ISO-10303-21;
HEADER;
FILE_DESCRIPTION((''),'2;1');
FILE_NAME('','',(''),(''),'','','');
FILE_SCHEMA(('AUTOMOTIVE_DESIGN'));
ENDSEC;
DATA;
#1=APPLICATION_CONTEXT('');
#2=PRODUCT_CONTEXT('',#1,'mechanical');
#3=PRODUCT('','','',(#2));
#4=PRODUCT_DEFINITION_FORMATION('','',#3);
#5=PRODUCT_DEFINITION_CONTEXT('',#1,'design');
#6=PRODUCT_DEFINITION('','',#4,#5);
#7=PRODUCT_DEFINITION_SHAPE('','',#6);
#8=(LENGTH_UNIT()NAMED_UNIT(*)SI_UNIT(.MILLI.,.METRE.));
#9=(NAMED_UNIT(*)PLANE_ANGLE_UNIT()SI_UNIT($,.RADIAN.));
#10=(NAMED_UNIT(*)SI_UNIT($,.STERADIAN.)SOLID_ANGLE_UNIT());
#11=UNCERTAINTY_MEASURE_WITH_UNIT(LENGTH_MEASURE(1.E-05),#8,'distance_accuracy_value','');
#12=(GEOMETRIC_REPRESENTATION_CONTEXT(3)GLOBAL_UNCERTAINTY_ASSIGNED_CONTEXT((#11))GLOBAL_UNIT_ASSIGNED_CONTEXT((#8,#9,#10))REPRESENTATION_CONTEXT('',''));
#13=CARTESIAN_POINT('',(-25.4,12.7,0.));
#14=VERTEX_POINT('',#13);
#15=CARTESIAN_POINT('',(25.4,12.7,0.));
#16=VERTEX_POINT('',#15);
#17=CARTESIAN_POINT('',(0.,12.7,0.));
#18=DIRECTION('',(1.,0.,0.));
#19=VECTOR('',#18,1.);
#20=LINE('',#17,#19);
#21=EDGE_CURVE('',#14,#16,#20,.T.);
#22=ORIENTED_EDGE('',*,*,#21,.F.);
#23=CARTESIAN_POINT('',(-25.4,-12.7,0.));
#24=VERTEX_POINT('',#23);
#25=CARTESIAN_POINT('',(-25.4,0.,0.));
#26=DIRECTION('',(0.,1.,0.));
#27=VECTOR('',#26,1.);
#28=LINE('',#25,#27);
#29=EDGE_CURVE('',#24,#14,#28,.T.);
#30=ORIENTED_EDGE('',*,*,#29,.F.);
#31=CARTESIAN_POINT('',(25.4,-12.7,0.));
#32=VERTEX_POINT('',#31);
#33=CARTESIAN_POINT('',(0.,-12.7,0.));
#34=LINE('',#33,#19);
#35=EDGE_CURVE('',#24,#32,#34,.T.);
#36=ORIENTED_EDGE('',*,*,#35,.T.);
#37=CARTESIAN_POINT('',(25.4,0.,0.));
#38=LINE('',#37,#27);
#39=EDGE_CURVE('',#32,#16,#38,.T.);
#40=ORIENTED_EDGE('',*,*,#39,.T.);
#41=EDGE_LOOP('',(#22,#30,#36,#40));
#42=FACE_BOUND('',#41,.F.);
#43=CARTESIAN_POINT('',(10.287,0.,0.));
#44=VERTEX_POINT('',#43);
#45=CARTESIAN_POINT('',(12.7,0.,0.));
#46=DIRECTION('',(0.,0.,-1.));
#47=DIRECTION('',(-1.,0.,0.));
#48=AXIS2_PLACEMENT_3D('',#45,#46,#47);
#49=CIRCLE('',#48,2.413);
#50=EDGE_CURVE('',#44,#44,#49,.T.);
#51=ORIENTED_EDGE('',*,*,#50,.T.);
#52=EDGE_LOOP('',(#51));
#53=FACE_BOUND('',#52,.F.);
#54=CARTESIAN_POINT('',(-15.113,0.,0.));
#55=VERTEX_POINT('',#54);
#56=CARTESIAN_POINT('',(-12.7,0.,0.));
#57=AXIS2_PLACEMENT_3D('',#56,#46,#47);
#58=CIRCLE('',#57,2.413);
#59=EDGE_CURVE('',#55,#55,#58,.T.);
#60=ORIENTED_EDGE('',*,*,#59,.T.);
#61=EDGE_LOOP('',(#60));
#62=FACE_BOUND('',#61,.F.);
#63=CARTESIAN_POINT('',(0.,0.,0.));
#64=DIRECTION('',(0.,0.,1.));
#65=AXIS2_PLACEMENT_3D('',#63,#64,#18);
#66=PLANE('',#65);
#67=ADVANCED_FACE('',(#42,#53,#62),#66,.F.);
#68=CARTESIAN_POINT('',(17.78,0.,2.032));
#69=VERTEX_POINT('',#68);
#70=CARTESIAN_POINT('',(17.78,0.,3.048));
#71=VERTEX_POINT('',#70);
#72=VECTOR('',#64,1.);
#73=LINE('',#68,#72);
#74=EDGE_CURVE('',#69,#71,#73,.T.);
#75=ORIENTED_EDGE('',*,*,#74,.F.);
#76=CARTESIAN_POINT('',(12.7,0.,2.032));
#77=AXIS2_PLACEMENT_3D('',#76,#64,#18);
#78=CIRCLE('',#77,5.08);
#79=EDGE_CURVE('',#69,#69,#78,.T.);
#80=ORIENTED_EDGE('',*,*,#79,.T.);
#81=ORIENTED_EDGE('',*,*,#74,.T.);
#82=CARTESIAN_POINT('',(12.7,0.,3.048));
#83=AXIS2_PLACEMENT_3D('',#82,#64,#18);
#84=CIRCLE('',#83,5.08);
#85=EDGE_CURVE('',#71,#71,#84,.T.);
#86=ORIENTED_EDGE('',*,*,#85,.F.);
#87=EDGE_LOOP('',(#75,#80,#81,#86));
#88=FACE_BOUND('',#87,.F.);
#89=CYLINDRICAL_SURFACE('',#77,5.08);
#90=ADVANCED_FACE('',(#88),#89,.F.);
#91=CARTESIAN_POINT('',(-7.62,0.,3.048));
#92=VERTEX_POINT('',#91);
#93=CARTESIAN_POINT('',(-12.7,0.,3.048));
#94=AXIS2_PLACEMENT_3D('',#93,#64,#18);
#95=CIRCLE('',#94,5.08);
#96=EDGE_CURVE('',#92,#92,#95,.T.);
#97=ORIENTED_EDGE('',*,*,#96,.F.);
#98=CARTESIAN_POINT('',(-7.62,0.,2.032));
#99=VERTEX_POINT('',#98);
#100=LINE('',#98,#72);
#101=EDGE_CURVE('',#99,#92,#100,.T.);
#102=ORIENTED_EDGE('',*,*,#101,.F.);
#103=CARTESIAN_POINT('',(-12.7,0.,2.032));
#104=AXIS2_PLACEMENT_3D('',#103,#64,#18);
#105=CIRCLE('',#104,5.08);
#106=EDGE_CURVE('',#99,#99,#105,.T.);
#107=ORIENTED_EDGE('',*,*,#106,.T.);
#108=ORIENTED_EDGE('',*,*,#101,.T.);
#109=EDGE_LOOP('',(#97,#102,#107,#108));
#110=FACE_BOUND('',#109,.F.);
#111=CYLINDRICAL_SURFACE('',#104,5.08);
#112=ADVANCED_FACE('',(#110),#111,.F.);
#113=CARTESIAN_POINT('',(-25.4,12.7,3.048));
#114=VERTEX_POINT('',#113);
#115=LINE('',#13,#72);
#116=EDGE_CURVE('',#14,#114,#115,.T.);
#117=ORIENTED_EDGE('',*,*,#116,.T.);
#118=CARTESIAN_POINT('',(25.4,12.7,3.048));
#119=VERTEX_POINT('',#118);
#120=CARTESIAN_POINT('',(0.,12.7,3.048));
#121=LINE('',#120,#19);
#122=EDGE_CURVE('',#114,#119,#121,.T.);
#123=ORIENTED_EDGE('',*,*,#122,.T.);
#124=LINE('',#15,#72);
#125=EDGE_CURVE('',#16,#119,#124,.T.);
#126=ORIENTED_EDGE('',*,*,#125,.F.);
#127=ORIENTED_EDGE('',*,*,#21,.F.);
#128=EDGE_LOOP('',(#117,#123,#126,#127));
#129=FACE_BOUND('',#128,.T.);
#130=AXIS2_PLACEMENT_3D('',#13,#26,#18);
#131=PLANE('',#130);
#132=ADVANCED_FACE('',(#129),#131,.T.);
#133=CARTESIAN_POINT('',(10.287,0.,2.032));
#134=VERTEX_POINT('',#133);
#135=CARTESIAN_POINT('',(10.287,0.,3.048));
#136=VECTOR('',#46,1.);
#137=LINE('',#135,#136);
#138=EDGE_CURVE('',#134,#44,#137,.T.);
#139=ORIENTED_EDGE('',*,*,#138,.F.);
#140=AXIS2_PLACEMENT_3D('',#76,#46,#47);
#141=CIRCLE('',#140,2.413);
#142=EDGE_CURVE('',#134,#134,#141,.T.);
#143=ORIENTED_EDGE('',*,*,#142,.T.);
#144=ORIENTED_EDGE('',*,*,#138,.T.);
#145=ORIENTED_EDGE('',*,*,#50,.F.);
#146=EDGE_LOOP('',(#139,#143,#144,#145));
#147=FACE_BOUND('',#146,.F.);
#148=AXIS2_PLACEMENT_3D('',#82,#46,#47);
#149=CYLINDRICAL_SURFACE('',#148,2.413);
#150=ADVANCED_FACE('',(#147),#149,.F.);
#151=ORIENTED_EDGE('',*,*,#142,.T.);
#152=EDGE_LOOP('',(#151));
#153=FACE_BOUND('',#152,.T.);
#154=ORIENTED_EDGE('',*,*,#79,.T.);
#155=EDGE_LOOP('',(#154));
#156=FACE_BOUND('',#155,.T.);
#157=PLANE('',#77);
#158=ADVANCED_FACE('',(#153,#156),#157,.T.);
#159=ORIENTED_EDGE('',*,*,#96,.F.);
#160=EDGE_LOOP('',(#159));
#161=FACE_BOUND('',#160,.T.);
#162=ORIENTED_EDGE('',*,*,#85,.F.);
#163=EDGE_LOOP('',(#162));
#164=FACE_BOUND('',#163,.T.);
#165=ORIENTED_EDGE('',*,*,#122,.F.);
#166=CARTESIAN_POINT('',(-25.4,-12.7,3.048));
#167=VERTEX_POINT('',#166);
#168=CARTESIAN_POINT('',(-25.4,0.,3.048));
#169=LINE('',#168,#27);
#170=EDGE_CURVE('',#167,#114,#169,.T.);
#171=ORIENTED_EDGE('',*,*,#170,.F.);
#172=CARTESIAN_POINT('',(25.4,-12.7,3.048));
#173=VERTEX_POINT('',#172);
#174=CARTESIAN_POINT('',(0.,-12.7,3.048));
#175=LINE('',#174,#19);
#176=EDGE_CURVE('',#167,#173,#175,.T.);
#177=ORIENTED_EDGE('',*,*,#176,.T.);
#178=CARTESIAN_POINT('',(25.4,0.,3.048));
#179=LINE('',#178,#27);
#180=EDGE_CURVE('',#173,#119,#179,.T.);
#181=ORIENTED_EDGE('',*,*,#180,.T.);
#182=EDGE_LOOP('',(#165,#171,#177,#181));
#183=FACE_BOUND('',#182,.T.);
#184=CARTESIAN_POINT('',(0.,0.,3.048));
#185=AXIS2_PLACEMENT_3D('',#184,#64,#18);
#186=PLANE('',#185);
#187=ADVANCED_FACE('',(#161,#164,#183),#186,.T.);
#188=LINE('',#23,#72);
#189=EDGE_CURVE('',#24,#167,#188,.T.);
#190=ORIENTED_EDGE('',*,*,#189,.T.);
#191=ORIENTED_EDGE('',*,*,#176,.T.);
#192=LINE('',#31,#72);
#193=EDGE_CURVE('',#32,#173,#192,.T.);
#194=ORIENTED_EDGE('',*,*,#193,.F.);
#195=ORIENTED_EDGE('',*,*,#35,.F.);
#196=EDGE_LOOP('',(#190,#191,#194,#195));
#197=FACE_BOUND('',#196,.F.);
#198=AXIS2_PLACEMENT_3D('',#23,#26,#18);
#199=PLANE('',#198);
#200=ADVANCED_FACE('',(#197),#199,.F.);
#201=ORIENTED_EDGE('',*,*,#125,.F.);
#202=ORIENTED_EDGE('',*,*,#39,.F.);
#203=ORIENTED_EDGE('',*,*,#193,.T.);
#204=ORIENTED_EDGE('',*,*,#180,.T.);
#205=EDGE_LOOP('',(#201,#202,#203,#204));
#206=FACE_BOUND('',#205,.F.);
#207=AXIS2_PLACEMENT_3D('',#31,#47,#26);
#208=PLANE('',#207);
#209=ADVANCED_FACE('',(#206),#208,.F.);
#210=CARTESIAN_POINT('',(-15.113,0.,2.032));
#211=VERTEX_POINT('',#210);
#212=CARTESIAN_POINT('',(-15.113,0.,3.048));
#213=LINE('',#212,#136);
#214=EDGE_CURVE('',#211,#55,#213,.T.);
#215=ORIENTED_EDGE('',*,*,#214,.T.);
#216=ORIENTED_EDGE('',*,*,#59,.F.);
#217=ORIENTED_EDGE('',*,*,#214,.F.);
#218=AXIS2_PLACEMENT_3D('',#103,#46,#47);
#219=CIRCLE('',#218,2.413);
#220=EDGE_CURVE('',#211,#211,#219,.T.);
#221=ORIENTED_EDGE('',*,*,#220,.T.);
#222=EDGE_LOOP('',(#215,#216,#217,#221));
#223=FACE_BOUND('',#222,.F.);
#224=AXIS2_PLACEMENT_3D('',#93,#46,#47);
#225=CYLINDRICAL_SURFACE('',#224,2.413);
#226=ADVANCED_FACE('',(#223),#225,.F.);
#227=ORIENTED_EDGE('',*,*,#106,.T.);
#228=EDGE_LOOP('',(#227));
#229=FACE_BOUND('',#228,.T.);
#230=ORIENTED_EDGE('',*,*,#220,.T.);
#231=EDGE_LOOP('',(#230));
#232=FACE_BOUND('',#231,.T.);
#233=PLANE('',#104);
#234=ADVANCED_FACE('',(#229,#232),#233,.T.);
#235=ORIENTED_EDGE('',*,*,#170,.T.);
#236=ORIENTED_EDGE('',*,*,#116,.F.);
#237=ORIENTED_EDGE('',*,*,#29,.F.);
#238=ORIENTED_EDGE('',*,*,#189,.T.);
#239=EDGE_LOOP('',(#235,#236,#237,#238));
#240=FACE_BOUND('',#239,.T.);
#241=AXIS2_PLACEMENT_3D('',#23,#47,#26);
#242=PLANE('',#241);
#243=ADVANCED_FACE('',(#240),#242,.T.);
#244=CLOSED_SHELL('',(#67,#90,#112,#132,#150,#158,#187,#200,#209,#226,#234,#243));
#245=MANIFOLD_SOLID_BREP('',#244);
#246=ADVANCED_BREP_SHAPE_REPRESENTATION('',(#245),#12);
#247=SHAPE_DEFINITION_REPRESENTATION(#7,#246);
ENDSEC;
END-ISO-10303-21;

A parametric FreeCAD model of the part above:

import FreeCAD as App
import Part
import Sketcher

V = App.Vector
Q = App.Units.Quantity

doc = App.newDocument("Part")
body = doc.addObject("PartDesign::Body", "Body")

# Sketch on XY plane
sketch1 = doc.addObject("Sketcher::SketchObject", "Sketch")
body.addObject(sketch1)
sketch1.AttachmentSupport = (doc.XY_Plane, [""])
sketch1.MapMode = "FlatFace"
sketch1.addGeometry([
    Part.LineSegment(V(-25, 13, 0), V(-25, -13, 0)),
    Part.LineSegment(V(-25, -13, 0), V(25, -13, 0)),
    Part.LineSegment(V(25, -13, 0), V(25, 13, 0)),
    Part.LineSegment(V(25, 13, 0), V(-25, 13, 0)),
], False)
sketch1.addConstraint([
    Sketcher.Constraint("Coincident", 0, 2, 1, 1),
    Sketcher.Constraint("Coincident", 1, 2, 2, 1),
    Sketcher.Constraint("Coincident", 2, 2, 3, 1),
    Sketcher.Constraint("Coincident", 3, 2, 0, 1),
    Sketcher.Constraint("Vertical", 0),
    Sketcher.Constraint("Horizontal", 1),
    Sketcher.Constraint("Vertical", 2),
    Sketcher.Constraint("Horizontal", 3),
    Sketcher.Constraint("Symmetric", 0, 2, 2, 2, -1, 1),
    Sketcher.Constraint("DistanceX", 1, 1, 1, 2, Q("2 in")),
    Sketcher.Constraint("DistanceY", 0, 2, 0, 1, Q("1 in")),
])
pad1 = doc.addObject("PartDesign::Pad", "Pad")
body.addObject(pad1)
pad1.Profile = sketch1
pad1.Length = Q("0.12 in")

# Sketch on XY plane
sketch2 = doc.addObject("Sketcher::SketchObject", "Sketch001")
body.addObject(sketch2)
sketch2.AttachmentSupport = (doc.XY_Plane, [""])
sketch2.MapMode = "FlatFace"
sketch2.AttachmentOffset = App.Placement(V(0, 0, 0.12 * 25.4), App.Rotation())
sketch2.addGeometry([
    Part.Circle(V(-12.7, 0, 0), V(0, 0, 1), 2.4),
    Part.Circle(V(12.7, 0, 0), V(0, 0, 1), 2.4),
], False)
sketch2.addConstraint([
    Sketcher.Constraint("Equal", 0, 1),
    Sketcher.Constraint("Symmetric", 0, 3, 1, 3, -1, 1),
    Sketcher.Constraint("PointOnObject", 0, 3, -1),
    Sketcher.Constraint("Diameter", 0, Q("0.19 in")),
    Sketcher.Constraint("DistanceX", 0, 3, 1, 3, Q("1 in")),
])
doc.recompute()
hole = doc.addObject("PartDesign::Hole", "Hole")
body.addObject(hole)
hole.Profile = sketch2
hole.ThreadType = "None"
hole.Diameter = Q("0.19 in")
hole.DepthType = "Dimension"
hole.Depth = Q("25 in")
hole.DrillPoint = "Flat"
hole.HoleCutType = "Counterbore"
hole.HoleCutDiameter = Q("0.4 in")
hole.HoleCutDepth = Q("0.04 in")

doc.recompute()
